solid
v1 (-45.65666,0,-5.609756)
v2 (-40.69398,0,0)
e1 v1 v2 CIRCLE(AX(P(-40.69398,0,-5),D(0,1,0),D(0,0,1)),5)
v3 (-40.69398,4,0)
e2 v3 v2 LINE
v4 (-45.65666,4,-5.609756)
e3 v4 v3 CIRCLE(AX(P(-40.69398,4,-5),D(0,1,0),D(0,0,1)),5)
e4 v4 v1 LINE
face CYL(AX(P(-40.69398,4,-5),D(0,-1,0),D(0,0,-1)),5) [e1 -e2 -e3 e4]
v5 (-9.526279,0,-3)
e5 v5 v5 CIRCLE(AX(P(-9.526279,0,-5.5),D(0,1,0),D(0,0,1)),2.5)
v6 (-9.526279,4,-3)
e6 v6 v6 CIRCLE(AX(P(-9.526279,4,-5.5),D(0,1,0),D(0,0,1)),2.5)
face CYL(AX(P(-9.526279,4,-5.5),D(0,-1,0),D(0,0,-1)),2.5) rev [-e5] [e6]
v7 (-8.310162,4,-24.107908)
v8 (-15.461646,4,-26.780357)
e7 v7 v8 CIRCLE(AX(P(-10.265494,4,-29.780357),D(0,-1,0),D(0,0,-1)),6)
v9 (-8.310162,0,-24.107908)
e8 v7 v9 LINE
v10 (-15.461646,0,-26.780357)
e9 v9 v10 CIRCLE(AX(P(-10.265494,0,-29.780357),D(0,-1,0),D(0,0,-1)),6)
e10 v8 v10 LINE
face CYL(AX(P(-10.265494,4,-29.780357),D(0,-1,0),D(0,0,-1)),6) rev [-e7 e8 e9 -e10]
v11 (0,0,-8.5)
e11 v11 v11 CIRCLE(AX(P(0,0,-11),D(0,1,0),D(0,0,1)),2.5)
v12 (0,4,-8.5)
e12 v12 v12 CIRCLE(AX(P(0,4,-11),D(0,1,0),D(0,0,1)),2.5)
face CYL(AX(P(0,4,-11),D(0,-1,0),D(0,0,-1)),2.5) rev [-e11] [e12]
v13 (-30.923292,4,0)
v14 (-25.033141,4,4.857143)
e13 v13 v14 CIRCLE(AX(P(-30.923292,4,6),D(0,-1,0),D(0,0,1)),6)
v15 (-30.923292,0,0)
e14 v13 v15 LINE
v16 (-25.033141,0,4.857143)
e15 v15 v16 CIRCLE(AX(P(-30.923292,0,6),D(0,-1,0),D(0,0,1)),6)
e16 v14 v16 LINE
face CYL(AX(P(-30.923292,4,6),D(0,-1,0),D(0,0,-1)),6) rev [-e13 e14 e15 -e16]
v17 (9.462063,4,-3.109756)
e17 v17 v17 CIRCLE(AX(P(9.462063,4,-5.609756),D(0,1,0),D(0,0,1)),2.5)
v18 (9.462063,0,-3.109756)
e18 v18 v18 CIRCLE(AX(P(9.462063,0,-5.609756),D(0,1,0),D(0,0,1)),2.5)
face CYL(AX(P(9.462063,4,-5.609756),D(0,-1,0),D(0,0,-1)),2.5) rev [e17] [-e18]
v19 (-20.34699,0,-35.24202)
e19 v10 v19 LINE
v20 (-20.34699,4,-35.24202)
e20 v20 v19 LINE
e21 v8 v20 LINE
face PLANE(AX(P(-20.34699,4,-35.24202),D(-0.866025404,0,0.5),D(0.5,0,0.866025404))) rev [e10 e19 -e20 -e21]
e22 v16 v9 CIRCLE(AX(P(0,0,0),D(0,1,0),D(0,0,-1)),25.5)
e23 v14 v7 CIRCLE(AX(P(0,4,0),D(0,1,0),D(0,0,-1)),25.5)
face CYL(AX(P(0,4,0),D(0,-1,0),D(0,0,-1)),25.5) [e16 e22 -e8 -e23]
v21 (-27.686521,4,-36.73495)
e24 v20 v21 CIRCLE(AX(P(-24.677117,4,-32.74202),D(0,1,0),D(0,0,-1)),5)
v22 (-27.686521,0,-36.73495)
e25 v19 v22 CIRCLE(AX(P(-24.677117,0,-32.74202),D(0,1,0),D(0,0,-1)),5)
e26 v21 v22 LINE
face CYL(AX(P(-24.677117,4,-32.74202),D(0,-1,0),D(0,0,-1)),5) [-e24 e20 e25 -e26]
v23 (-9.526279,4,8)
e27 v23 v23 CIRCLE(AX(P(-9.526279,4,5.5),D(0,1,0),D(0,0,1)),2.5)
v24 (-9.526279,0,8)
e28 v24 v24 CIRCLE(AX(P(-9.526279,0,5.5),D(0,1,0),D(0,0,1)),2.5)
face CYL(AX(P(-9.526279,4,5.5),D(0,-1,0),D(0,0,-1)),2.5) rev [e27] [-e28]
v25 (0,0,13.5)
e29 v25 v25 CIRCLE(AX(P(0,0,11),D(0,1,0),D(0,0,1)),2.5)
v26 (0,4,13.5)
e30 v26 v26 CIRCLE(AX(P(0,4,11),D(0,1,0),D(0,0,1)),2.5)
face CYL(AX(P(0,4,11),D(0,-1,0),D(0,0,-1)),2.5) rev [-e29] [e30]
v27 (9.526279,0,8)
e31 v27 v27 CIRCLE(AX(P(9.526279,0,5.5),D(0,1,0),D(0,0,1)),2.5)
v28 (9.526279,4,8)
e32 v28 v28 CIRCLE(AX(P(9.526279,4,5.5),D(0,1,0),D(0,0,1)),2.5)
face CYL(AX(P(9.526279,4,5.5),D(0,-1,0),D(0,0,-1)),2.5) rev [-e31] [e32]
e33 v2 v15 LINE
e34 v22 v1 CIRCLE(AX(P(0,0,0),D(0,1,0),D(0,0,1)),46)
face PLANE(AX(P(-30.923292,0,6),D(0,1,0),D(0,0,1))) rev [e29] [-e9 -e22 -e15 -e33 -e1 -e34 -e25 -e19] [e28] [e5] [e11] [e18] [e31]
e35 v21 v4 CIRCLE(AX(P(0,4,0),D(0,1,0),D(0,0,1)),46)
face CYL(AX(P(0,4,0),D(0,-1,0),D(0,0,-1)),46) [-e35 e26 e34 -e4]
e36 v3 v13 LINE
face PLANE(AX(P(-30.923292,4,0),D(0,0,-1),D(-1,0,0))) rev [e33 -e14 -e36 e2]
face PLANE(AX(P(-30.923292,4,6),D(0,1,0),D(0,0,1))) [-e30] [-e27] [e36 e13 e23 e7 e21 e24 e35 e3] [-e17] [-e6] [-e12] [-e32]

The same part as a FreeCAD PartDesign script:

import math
import FreeCAD as App
import Part
import Sketcher
Q = App.Units.Quantity

doc = App.newDocument("Part")
params = doc.addObject("Spreadsheet::Sheet", "Params")
for row, (alias, value) in enumerate([
    ("sketch1_diameter", "5 mm"),
    ("sketch1_radius", "5 mm"),
    ("sketch1_radius2", "46 mm"),
    ("sketch1_radius3", "6 mm"),
    ("sketch1_radius4", "25.5 mm"),
    ("pad1_length", "4 mm"),
], start=1):
    params.set(f"A{row}", alias)
    params.set(f"B{row}", "=" + value)
    params.setAlias(f"B{row}", alias)

body = doc.addObject("PartDesign::Body", "Body")

# Sketch on XZ plane
sketch1 = doc.addObject("Sketcher::SketchObject", "Sketch")
body.addObject(sketch1)
sketch1.AttachmentSupport = (doc.XZ_Plane, [""])
sketch1.MapMode = "FlatFace"
sketch1.addGeometry(Part.LineSegment(App.Vector(-15.5, -26.8, 0), App.Vector(-20.3, -35.2, 0)), False)
sketch1.addGeometry(Part.ArcOfCircle(Part.Circle(App.Vector(-24.7, -32.7, 0), App.Vector(0, 0, 1), 5), math.radians(-127), math.radians(-30)), False)
sketch1.addGeometry(Part.ArcOfCircle(Part.Circle(App.Vector(0, 0, 0), App.Vector(0, 0, 1), 46), math.radians(-173), math.radians(-127)), False)
sketch1.addGeometry(Part.ArcOfCircle(Part.Circle(App.Vector(-40.7, -5, 0), App.Vector(0, 0, 1), 5), math.radians(90), math.radians(187)), False)
sketch1.addGeometry(Part.LineSegment(App.Vector(-40.7, 0, 0), App.Vector(-30.9, 0, 0)), False)
sketch1.addGeometry(Part.ArcOfCircle(Part.Circle(App.Vector(-30.9, 6, 0), App.Vector(0, 0, 1), 6), math.radians(-90), math.radians(-11)), False)
sketch1.addGeometry(Part.ArcOfCircle(Part.Circle(App.Vector(0, 0, 0), App.Vector(0, 0, 1), 25.5), math.radians(-109), math.radians(169)), False)
sketch1.addGeometry(Part.ArcOfCircle(Part.Circle(App.Vector(-10.3, -29.8, 0), App.Vector(0, 0, 1), 6), math.radians(71), math.radians(150)), False)
sketch1.addGeometry(Part.Circle(App.Vector(0, 11, 0), App.Vector(0, 0, 1), 2.5), False)
sketch1.addGeometry(Part.Circle(App.Vector(9.5, 5.5, 0), App.Vector(0, 0, 1), 2.5), False)
sketch1.addGeometry(Part.Circle(App.Vector(-9.5, 5.5, 0), App.Vector(0, 0, 1), 2.5), False)
sketch1.addGeometry(Part.Circle(App.Vector(9.5, -5.6, 0), App.Vector(0, 0, 1), 2.5), False)
sketch1.addGeometry(Part.Circle(App.Vector(0, -11, 0), App.Vector(0, 0, 1), 2.5), False)
sketch1.addGeometry(Part.Circle(App.Vector(-9.5, -5.5, 0), App.Vector(0, 0, 1), 2.5), False)
sketch1.addConstraint(Sketcher.Constraint("Tangent", 0, 2, 1, 2))
sketch1.addConstraint(Sketcher.Constraint("Tangent", 1, 1, 2, 2))
sketch1.addConstraint(Sketcher.Constraint("Tangent", 2, 1, 3, 2))
sketch1.addConstraint(Sketcher.Constraint("Tangent", 3, 1, 4, 1))
sketch1.addConstraint(Sketcher.Constraint("Tangent", 4, 2, 5, 1))
sketch1.addConstraint(Sketcher.Constraint("Tangent", 5, 2, 6, 2))
sketch1.addConstraint(Sketcher.Constraint("Tangent", 6, 1, 7, 1))
sketch1.addConstraint(Sketcher.Constraint("Tangent", 7, 2, 0, 1))
sketch1.addConstraint(Sketcher.Constraint("Horizontal", 4))
sketch1.addConstraint(Sketcher.Constraint("Coincident", 2, 3, -1, 1))
sketch1.addConstraint(Sketcher.Constraint("Coincident", 6, 3, -1, 1))
sketch1.addConstraint(Sketcher.Constraint("Equal", 1, 3))
sketch1.addConstraint(Sketcher.Constraint("Equal", 5, 7))
sketch1.addConstraint(Sketcher.Constraint("Equal", 8, 9))
sketch1.addConstraint(Sketcher.Constraint("Equal", 9, 10))
sketch1.addConstraint(Sketcher.Constraint("Equal", 10, 11))
sketch1.addConstraint(Sketcher.Constraint("Equal", 11, 12))
sketch1.addConstraint(Sketcher.Constraint("Equal", 12, 13))
sketch1.addConstraint(Sketcher.Constraint("Symmetric", 8, 3, 12, 3, -1, 1))
sketch1.addConstraint(Sketcher.Constraint("Symmetric", 9, 3, 13, 3, -1, 1))
sketch1.addConstraint(Sketcher.Constraint("Symmetric", 9, 3, 10, 3, -2))
sketch1.addConstraint(Sketcher.Constraint("PointOnObject", 8, 3, -2))
sketch1.addConstraint(Sketcher.Constraint("PointOnObject", 3, 1, -1))
sketch1.addConstraint(Sketcher.Constraint("Horizontal", 11, 3, 2, 1))
sketch1.addConstraint(Sketcher.Constraint("Diameter", 8, Q("5 mm")))
sketch1.addConstraint(Sketcher.Constraint("Radius", 1, Q("5 mm")))
sketch1.addConstraint(Sketcher.Constraint("Radius", 2, Q("46 mm")))
sketch1.addConstraint(Sketcher.Constraint("Radius", 5, Q("6 mm")))
sketch1.addConstraint(Sketcher.Constraint("Radius", 6, Q("25.5 mm")))
sketch1.addConstraint(Sketcher.Constraint("Angle", 0, Q("-120 deg")))
sketch1.addConstraint(Sketcher.Constraint("DistanceY", -1, 1, 8, 3, Q("11 mm")))
sketch1.addConstraint(Sketcher.Constraint("DistanceY", 13, 3, 10, 3, Q("11 mm")))
sketch1.addConstraint(Sketcher.Constraint("DistanceX", 5, 3, 7, 3, Q("20.657799 mm")))
sketch1.addConstraint(Sketcher.Constraint("DistanceX", 3, 1, 10, 3, Q("31.1677 mm")))
sketch1.addConstraint(Sketcher.Constraint("DistanceX", -1, 1, 11, 3, Q("9.462063 mm")))
sketch1.setExpression("Constraints[24]", "Params.sketch1_diameter")
sketch1.setExpression("Constraints[25]", "Params.sketch1_radius")
sketch1.setExpression("Constraints[26]", "Params.sketch1_radius2")
sketch1.setExpression("Constraints[27]", "Params.sketch1_radius3")
sketch1.setExpression("Constraints[28]", "Params.sketch1_radius4")
pad1 = doc.addObject("PartDesign::Pad", "Pad")
body.addObject(pad1)
pad1.Profile = sketch1
pad1.setExpression("Length", "Params.pad1_length")
pad1.Reversed = True

doc.recompute()
